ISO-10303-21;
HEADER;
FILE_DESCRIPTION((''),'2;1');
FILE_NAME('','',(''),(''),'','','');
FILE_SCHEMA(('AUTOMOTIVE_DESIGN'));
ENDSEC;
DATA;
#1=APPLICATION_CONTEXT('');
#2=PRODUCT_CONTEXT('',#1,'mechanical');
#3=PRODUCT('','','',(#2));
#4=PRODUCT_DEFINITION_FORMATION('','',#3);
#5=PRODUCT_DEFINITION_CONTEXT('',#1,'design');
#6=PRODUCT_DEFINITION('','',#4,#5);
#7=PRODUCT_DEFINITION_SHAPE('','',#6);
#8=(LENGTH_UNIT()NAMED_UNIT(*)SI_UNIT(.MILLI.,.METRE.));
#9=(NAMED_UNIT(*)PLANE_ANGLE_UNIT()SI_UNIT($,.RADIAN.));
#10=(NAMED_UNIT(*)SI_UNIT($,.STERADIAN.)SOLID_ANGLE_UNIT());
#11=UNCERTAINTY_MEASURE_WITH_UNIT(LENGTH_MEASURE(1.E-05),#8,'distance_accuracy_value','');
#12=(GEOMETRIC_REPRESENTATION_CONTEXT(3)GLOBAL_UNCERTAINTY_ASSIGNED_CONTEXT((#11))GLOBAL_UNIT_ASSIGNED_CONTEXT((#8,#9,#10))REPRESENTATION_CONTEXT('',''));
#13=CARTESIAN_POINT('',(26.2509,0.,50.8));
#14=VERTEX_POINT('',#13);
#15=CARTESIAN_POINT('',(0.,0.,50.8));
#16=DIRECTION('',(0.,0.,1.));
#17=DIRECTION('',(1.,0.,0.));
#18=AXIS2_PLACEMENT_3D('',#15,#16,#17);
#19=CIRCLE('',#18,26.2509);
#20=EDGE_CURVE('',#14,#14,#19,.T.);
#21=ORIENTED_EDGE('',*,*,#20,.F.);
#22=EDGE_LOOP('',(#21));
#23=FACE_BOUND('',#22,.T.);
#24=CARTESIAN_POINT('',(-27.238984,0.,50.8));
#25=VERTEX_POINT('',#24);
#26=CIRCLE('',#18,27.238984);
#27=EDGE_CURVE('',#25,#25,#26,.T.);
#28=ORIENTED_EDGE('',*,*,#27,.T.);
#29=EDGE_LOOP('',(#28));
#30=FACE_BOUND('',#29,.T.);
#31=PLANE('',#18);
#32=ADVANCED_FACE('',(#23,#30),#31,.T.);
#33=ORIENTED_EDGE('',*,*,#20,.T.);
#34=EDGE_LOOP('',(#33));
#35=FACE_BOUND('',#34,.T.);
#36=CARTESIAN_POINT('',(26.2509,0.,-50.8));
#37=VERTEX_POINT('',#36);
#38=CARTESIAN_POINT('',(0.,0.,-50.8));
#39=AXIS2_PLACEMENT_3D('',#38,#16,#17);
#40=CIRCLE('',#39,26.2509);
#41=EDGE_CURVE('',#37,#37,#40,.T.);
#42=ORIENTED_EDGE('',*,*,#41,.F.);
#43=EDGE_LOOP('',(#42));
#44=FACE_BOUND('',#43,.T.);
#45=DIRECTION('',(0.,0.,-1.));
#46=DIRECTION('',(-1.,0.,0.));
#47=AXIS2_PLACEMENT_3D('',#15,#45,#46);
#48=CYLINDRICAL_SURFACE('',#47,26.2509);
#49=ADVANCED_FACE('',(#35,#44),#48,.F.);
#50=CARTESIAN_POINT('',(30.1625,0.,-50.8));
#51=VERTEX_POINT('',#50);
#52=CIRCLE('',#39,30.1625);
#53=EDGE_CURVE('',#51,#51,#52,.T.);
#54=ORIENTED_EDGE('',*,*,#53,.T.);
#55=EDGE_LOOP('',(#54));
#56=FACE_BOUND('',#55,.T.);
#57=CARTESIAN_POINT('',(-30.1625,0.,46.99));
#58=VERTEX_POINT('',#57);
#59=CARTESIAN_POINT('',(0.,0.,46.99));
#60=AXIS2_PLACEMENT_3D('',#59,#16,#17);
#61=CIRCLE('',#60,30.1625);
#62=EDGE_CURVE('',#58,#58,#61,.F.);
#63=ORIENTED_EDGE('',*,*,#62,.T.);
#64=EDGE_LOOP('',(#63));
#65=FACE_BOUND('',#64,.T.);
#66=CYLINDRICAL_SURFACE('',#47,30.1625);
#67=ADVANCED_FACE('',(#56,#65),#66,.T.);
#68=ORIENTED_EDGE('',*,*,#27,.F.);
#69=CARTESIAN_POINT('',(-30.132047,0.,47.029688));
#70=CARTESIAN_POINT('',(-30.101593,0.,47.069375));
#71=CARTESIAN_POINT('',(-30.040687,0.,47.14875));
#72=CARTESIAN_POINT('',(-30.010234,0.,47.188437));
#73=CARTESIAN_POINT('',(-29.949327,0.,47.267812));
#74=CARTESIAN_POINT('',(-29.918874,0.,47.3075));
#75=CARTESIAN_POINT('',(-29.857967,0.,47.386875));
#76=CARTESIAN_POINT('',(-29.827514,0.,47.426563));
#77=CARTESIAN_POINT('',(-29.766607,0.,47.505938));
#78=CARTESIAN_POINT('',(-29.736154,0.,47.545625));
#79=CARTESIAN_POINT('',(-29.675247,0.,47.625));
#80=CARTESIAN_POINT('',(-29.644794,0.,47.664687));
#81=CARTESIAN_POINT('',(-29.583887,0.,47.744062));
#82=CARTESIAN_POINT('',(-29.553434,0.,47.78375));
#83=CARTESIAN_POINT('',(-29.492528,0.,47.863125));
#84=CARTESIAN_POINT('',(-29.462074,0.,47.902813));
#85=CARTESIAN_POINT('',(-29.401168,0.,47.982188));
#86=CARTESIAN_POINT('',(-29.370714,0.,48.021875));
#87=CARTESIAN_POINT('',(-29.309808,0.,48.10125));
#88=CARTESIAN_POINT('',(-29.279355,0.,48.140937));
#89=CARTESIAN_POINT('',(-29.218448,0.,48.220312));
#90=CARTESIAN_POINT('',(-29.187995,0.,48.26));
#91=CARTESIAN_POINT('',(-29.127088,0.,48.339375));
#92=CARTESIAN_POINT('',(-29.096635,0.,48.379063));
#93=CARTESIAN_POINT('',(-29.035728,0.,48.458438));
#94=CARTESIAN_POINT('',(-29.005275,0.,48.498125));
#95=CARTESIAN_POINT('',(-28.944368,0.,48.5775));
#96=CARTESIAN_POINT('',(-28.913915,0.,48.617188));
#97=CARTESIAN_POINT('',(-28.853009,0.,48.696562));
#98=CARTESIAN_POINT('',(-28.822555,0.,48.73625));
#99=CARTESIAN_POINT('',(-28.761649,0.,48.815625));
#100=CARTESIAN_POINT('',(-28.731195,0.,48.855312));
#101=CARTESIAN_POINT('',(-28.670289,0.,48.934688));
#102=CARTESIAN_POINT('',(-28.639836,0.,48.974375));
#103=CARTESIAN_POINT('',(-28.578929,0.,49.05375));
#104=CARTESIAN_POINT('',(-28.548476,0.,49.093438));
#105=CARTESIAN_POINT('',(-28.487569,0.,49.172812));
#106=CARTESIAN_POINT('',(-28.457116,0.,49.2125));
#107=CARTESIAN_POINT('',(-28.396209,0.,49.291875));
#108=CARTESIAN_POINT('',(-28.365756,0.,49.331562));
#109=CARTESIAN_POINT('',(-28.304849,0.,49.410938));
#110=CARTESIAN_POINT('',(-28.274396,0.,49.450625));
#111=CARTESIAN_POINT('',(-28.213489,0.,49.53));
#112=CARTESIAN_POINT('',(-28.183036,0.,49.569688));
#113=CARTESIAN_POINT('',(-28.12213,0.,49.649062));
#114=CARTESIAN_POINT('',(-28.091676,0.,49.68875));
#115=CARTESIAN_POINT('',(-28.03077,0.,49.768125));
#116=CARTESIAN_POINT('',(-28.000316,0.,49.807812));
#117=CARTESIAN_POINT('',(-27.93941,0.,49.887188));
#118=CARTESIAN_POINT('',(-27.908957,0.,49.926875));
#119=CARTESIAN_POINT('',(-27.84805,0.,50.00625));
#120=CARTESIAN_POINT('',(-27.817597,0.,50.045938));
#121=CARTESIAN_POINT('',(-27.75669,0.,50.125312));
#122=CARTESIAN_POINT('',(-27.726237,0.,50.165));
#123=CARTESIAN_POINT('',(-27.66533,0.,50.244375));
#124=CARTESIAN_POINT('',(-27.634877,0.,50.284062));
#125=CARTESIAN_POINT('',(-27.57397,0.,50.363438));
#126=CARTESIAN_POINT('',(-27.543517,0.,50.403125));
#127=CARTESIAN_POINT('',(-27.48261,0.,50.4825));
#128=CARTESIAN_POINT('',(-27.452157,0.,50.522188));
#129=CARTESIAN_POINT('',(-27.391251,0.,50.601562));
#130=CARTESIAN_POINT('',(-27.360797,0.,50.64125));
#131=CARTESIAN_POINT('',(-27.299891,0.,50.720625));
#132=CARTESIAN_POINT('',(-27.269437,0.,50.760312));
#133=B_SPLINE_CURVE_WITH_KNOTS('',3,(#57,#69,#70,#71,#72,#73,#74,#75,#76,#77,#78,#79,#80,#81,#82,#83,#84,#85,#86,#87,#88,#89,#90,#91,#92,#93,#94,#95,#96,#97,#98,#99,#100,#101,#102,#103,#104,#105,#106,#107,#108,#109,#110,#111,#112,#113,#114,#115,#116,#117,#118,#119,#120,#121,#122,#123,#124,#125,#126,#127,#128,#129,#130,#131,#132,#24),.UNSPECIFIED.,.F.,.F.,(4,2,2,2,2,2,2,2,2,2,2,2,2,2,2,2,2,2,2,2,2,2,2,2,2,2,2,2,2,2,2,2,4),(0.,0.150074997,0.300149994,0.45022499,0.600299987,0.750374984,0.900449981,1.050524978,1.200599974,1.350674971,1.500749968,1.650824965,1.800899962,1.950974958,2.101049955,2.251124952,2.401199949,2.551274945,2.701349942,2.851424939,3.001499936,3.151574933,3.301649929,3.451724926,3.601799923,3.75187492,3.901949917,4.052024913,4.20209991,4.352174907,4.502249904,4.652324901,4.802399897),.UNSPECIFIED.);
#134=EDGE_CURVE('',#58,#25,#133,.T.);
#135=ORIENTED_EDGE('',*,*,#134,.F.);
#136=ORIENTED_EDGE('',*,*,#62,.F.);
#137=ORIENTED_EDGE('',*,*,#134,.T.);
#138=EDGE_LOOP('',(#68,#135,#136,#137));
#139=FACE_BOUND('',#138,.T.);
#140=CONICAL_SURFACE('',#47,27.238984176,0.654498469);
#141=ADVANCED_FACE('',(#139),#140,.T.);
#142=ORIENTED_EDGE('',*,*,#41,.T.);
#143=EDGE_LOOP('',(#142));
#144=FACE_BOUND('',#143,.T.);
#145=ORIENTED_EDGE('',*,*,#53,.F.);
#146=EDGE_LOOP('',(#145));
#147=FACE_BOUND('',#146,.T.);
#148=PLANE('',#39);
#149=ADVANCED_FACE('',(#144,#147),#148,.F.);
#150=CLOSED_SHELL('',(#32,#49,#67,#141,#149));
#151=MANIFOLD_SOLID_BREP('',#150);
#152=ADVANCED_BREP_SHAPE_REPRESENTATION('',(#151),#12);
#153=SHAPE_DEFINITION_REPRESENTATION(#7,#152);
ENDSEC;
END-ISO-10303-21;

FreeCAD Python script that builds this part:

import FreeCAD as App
import Part
import Sketcher

V = App.Vector
Q = App.Units.Quantity


def edges_at(feature, points):
    """Names of the edges that pass closest to the given points."""
    edges = feature.Shape.Edges
    near = lambda p: min(range(len(edges)), key=lambda i: edges[i].distToShape(Part.Vertex(*p))[0])
    return sorted({f"Edge{near(p) + 1}" for p in points})

doc = App.newDocument("Part")
body = doc.addObject("PartDesign::Body", "Body")

# Sketch on XY plane
sketch1 = body.newObject("Sketcher::SketchObject", "Sketch")
sketch1.AttachmentSupport = (doc.getObject("XY_Plane"), [""])
sketch1.MapMode = "FlatFace"
sketch1.addGeometry([
    Part.Circle(V(0, 0, 0), V(0, 0, 1), 30.1625),
    Part.Circle(V(0, 0, 0), V(0, 0, 1), 26.2509),
], False)
sketch1.addConstraint([
    Sketcher.Constraint("Coincident", 0, 3, -1, 1),
    Sketcher.Constraint("Coincident", 1, 3, -1, 1),
    Sketcher.Constraint("Diameter", 0, Q("2.375 in")),
    Sketcher.Constraint("Diameter", 1, Q("2.067 in")),
])
pad1 = body.newObject("PartDesign::Pad", "Pad")
pad1.Profile = sketch1
pad1.Length = Q("4 in")
pad1.Midplane = True
doc.recompute()

chamfer = body.newObject("PartDesign::Chamfer", "Chamfer")
chamfer.Base = (pad1, edges_at(pad1, [(-30.163, 0, 50.8)]))
chamfer.ChamferType = "Two distances"
chamfer.Size = Q("0.15 in")
chamfer.Size2 = 2.923516

doc.recompute()
